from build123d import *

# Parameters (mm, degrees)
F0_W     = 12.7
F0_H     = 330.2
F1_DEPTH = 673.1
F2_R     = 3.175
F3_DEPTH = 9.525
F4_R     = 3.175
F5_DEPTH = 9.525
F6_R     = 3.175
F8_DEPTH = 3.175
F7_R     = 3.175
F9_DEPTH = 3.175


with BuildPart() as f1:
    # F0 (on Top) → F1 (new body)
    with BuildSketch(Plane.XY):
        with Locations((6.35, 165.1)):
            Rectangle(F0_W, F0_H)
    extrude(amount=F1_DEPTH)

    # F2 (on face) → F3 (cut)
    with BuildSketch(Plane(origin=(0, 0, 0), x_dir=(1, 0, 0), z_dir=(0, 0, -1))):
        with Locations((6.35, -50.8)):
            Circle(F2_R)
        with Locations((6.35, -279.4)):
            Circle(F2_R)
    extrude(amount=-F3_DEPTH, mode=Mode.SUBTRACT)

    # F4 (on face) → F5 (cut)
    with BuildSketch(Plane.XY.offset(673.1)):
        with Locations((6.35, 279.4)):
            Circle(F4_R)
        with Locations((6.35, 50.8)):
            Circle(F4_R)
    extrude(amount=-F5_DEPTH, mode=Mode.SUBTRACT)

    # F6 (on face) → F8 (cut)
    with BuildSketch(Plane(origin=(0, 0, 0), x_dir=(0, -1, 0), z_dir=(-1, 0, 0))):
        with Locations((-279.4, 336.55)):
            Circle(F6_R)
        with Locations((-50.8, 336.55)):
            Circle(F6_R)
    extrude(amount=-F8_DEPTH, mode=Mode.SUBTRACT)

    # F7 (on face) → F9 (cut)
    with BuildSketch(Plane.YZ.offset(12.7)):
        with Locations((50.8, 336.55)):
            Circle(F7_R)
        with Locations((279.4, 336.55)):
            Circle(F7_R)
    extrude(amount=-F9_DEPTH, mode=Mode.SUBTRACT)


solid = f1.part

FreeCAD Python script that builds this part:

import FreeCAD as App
import Part
import Sketcher

V = App.Vector
Q = App.Units.Quantity

doc = App.newDocument("Part")
body = doc.addObject("PartDesign::Body", "Body")

sketch1 = body.newObject("Sketcher::SketchObject", "Sketch")
sketch1.AttachmentSupport = (doc.getObject("XY_Plane"), [""])
sketch1.MapMode = "FlatFace"
sketch1.addGeometry([
    Part.LineSegment(V(0, 330, 0), V(0, 0, 0)),
    Part.LineSegment(V(0, 0, 0), V(13, 0, 0)),
    Part.LineSegment(V(13, 0, 0), V(13, 330, 0)),
    Part.LineSegment(V(13, 330, 0), V(0, 330, 0)),
], False)
sketch1.addConstraint([
    Sketcher.Constraint("Coincident", 0, 2, 1, 1),
    Sketcher.Constraint("Coincident", 1, 2, 2, 1),
    Sketcher.Constraint("Coincident", 2, 2, 3, 1),
    Sketcher.Constraint("Coincident", 3, 2, 0, 1),
    Sketcher.Constraint("Vertical", 0),
    Sketcher.Constraint("Horizontal", 1),
    Sketcher.Constraint("Vertical", 2),
    Sketcher.Constraint("Horizontal", 3),
    Sketcher.Constraint("Coincident", 0, 2, -1, 1),
    Sketcher.Constraint("DistanceY", 0, 2, 0, 1, Q("13 in")),
    Sketcher.Constraint("DistanceX", 1, 1, 1, 2, Q("0.5 in")),
])
pad1 = body.newObject("PartDesign::Pad", "Pad")
pad1.Profile = sketch1
pad1.Length = Q("26.5 in")

sketch2 = body.newObject("Sketcher::SketchObject", "Sketch001")
sketch2.AttachmentSupport = (doc.getObject("XY_Plane"), [""])
sketch2.MapMode = "FlatFace"
sketch2.addGeometry([
    Part.Circle(V(6.3, 50.8, 0), V(0, 0, 1), 3.2),
    Part.Circle(V(6.3, 279.4, 0), V(0, 0, 1), 3.2),
], False)
sketch2.addConstraint([
    Sketcher.Constraint("Equal", 0, 1),
    Sketcher.Constraint("Vertical", 0, 3, 1, 3),
    Sketcher.Constraint("Diameter", 0, Q("0.25 in")),
    Sketcher.Constraint("DistanceY", -1, 1, 0, 3, Q("2 in")),
    Sketcher.Constraint("DistanceY", -1, 1, 1, 3, Q("11 in")),
    Sketcher.Constraint("DistanceX", -1, 1, 0, 3, Q("0.25 in")),
])
pocket1 = body.newObject("PartDesign::Pocket", "Pocket")
pocket1.Profile = sketch2
pocket1.Length = Q("0.375 in")
pocket1.Reversed = True

sketch3 = body.newObject("Sketcher::SketchObject", "Sketch002")
sketch3.AttachmentSupport = (doc.getObject("XY_Plane"), [""])
sketch3.MapMode = "FlatFace"
sketch3.AttachmentOffset = App.Placement(V(0, 0, 26.5 * 25.4), App.Rotation())
sketch3.addGeometry([
    Part.Circle(V(6.3, 279.4, 0), V(0, 0, 1), 3.2),
    Part.Circle(V(6.3, 50.8, 0), V(0, 0, 1), 3.2),
], False)
sketch3.addConstraint([
    Sketcher.Constraint("Equal", 0, 1),
    Sketcher.Constraint("Vertical", 0, 3, 1, 3),
    Sketcher.Constraint("Diameter", 0, Q("0.25 in")),
    Sketcher.Constraint("DistanceY", -1, 1, 0, 3, Q("11 in")),
    Sketcher.Constraint("DistanceY", -1, 1, 1, 3, Q("2 in")),
    Sketcher.Constraint("DistanceX", -1, 1, 0, 3, Q("0.25 in")),
])
pocket2 = body.newObject("PartDesign::Pocket", "Pocket001")
pocket2.Profile = sketch3
pocket2.Length = Q("0.375 in")

sketch4 = body.newObject("Sketcher::SketchObject", "Sketch003")
sketch4.AttachmentSupport = (doc.getObject("YZ_Plane"), [""])
sketch4.MapMode = "FlatFace"
sketch4.addGeometry([
    Part.Circle(V(279.4, 336.6, 0), V(0, 0, 1), 3.2),
    Part.Circle(V(50.8, 336.6, 0), V(0, 0, 1), 3.2),
], False)
sketch4.addConstraint([
    Sketcher.Constraint("Equal", 0, 1),
    Sketcher.Constraint("Horizontal", 0, 3, 1, 3),
    Sketcher.Constraint("Diameter", 0, Q("0.25 in")),
    Sketcher.Constraint("DistanceX", -1, 1, 0, 3, Q("11 in")),
    Sketcher.Constraint("DistanceX", -1, 1, 1, 3, Q("2 in")),
    Sketcher.Constraint("DistanceY", -1, 1, 0, 3, Q("13.25 in")),
])
pocket3 = body.newObject("PartDesign::Pocket", "Pocket002")
pocket3.Profile = sketch4
pocket3.Length = Q("0.125 in")
pocket3.Reversed = True

sketch5 = body.newObject("Sketcher::SketchObject", "Sketch004")
sketch5.AttachmentSupport = (doc.getObject("YZ_Plane"), [""])
sketch5.MapMode = "FlatFace"
sketch5.AttachmentOffset = App.Placement(V(0, 0, 0.5 * 25.4), App.Rotation())
sketch5.addGeometry([
    Part.Circle(V(50.8, 336.6, 0), V(0, 0, 1), 3.2),
    Part.Circle(V(279.4, 336.6, 0), V(0, 0, 1), 3.2),
], False)
sketch5.addConstraint([
    Sketcher.Constraint("Equal", 0, 1),
    Sketcher.Constraint("Horizontal", 0, 3, 1, 3),
    Sketcher.Constraint("Diameter", 0, Q("0.25 in")),
    Sketcher.Constraint("DistanceX", -1, 1, 0, 3, Q("2 in")),
    Sketcher.Constraint("DistanceX", -1, 1, 1, 3, Q("11 in")),
    Sketcher.Constraint("DistanceY", -1, 1, 0, 3, Q("13.25 in")),
])
pocket4 = body.newObject("PartDesign::Pocket", "Pocket003")
pocket4.Profile = sketch5
pocket4.Length = Q("0.125 in")

doc.recompute()
